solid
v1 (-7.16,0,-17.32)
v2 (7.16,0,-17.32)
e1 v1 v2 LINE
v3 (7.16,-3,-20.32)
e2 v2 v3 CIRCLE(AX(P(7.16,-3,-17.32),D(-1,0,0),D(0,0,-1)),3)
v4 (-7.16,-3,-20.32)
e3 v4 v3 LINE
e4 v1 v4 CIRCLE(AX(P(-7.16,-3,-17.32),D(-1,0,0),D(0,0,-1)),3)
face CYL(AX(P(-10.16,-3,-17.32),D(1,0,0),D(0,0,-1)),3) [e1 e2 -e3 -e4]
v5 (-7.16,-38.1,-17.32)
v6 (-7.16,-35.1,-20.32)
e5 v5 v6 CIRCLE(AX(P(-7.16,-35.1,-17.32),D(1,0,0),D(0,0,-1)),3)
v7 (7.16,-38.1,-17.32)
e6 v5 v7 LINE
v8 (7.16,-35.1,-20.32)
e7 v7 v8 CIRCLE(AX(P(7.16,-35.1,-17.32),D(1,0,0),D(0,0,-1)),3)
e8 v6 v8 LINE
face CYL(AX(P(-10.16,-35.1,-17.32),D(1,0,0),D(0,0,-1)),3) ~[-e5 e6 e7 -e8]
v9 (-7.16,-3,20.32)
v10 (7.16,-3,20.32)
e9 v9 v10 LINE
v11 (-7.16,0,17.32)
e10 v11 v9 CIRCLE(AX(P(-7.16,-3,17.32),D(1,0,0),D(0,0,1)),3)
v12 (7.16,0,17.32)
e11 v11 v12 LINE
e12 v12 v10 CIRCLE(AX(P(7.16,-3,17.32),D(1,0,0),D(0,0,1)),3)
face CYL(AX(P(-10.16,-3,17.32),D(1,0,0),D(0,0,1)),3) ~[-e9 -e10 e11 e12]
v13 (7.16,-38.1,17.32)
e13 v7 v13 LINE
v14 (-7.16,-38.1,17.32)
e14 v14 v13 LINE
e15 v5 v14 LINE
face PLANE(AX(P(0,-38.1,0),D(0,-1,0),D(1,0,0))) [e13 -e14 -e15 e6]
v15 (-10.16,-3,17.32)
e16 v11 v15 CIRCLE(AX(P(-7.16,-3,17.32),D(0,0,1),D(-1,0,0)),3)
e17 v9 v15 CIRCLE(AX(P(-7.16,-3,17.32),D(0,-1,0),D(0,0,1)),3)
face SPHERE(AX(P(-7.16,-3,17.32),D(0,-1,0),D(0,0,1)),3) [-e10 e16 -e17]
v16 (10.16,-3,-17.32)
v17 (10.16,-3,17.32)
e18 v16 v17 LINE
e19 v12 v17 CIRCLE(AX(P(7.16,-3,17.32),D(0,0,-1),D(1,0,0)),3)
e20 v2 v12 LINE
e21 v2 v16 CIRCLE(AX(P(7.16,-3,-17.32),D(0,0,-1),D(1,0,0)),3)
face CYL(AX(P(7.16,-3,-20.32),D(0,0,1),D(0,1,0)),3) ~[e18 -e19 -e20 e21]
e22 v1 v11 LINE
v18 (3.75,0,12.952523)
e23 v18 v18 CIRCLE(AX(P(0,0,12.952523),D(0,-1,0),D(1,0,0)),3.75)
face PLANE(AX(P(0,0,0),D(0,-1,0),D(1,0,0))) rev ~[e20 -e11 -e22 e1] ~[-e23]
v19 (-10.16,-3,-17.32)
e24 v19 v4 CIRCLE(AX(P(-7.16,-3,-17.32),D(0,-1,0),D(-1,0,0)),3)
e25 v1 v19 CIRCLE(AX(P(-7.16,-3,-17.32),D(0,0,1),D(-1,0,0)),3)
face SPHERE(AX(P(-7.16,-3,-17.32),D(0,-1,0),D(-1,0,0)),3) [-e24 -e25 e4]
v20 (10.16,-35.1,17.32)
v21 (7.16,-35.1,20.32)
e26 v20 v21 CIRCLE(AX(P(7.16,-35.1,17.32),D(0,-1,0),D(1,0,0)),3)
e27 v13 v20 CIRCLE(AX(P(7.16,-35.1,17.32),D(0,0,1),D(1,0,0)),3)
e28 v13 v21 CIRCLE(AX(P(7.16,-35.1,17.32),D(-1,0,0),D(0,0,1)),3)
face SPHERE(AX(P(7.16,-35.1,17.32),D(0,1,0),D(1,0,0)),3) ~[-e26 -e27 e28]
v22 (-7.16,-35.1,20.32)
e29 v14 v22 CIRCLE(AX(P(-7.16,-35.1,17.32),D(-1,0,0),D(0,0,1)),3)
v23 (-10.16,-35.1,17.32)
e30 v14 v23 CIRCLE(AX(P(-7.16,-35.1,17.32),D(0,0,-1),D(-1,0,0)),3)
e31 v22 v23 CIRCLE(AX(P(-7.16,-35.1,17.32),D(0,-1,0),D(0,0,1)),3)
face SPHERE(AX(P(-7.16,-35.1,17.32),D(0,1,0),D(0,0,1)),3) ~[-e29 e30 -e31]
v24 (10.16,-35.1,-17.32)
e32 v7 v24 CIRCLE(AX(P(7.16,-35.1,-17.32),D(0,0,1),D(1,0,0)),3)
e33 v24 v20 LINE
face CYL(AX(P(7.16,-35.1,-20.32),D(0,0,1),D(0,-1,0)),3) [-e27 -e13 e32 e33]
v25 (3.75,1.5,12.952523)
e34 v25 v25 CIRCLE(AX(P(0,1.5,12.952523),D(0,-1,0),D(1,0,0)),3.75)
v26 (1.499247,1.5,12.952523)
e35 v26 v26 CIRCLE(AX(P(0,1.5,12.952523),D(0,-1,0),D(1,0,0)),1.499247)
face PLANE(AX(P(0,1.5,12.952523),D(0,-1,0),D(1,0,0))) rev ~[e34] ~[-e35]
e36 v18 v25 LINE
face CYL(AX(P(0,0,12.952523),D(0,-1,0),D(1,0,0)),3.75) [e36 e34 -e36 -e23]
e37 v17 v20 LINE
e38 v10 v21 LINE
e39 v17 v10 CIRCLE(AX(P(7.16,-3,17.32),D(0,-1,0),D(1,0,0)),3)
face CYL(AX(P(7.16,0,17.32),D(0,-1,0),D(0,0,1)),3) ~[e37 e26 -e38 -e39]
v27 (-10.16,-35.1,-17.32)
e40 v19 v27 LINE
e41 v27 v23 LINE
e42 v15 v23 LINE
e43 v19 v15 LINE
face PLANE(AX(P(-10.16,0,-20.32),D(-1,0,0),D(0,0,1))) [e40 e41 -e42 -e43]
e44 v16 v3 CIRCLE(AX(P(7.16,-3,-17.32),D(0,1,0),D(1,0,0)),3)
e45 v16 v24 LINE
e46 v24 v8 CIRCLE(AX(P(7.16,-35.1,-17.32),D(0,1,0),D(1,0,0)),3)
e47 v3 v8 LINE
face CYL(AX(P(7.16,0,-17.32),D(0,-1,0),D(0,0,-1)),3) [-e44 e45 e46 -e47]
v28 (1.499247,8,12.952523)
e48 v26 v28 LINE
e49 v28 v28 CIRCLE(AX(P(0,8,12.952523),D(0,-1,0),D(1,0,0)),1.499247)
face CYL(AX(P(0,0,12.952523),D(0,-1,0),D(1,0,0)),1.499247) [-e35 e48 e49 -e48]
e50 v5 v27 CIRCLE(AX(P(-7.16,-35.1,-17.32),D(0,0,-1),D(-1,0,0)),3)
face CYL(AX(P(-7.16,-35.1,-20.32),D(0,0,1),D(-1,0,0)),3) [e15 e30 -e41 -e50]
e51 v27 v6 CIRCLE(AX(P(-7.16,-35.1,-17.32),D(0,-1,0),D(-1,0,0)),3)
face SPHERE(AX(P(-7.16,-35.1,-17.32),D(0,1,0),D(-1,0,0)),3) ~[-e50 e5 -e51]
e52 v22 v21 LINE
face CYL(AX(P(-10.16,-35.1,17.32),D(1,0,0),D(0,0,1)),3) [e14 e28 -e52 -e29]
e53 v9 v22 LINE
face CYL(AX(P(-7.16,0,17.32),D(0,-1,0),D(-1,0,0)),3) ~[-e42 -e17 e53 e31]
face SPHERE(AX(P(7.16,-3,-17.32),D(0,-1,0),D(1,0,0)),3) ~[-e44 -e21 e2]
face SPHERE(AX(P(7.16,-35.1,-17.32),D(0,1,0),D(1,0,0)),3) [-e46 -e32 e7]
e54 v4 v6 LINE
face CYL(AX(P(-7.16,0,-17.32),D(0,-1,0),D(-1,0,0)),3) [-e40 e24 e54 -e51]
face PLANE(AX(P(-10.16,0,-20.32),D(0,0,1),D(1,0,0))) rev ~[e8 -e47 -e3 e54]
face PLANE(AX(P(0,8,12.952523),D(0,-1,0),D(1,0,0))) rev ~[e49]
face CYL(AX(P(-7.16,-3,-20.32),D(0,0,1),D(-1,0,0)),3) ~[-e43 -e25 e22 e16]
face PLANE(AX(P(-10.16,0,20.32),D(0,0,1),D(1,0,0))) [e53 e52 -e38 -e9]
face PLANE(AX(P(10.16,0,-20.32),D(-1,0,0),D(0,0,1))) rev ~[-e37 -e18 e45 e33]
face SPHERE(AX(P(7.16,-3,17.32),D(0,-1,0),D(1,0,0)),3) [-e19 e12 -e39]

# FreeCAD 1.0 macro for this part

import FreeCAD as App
import Part
import Sketcher
from FreeCAD import Vector


def edges_at(feature, points):
    """Names of the edges that pass closest to the given points."""
    edges = feature.Shape.Edges
    near = lambda p: min(range(len(edges)), key=lambda i: edges[i].distToShape(Part.Vertex(*p))[0])
    return sorted({f"Edge{near(p) + 1}" for p in points})

doc = App.newDocument("Part")
body = doc.addObject("PartDesign::Body", "Body")

sketch1 = doc.addObject("Sketcher::SketchObject", "Sketch")
body.addObject(sketch1)
sketch1.AttachmentSupport = (doc.XZ_Plane, [""])
sketch1.MapMode = "FlatFace"
sketch1.addGeometry([
    Part.LineSegment(Vector(-10.16, 20.32, 0), Vector(-10.16, -20.32, 0)),
    Part.LineSegment(Vector(-10.16, -20.32, 0), Vector(10.16, -20.32, 0)),
    Part.LineSegment(Vector(10.16, -20.32, 0), Vector(10.16, 20.32, 0)),
    Part.LineSegment(Vector(10.16, 20.32, 0), Vector(-10.16, 20.32, 0)),
], False)
sketch1.addConstraint([
    Sketcher.Constraint("Coincident", 0, 2, 1, 1),
    Sketcher.Constraint("Coincident", 1, 2, 2, 1),
    Sketcher.Constraint("Coincident", 2, 2, 3, 1),
    Sketcher.Constraint("Coincident", 3, 2, 0, 1),
    Sketcher.Constraint("Vertical", 0),
    Sketcher.Constraint("Horizontal", 1),
    Sketcher.Constraint("Vertical", 2),
    Sketcher.Constraint("Horizontal", 3),
    Sketcher.Constraint("Symmetric", 0, 2, 2, 2, -1, 1),
    Sketcher.Constraint("DistanceX", 1, 1, 1, 2, 20.32),
    Sketcher.Constraint("DistanceY", 0, 2, 0, 1, 40.64),
])
pad1 = doc.addObject("PartDesign::Pad", "Pad")
body.addObject(pad1)
pad1.Profile = sketch1
pad1.Length = 38.1

sketch2 = doc.addObject("Sketcher::SketchObject", "Sketch001")
body.addObject(sketch2)
sketch2.AttachmentSupport = (doc.XZ_Plane, [""])
sketch2.MapMode = "FlatFace"
sketch2.addGeometry([
    Part.Circle(Vector(0, 12.952523, 0), Vector(0, 0, 1), 3.75),
    Part.Circle(Vector(0, 12.952523, 0), Vector(0, 0, 1), 1.499247),
], False)
sketch2.addConstraint([
    Sketcher.Constraint("Coincident", 1, 3, 0, 3),
    Sketcher.Constraint("PointOnObject", 0, 3, -2),
    Sketcher.Constraint("Diameter", 0, 7.5),
    Sketcher.Constraint("Diameter", 1, 2.998494),
    Sketcher.Constraint("DistanceY", -1, 1, 0, 3, 12.952523),
])
pad2 = doc.addObject("PartDesign::Pad", "Pad001")
body.addObject(pad2)
pad2.Profile = sketch2
pad2.Length = 1.5
pad2.Reversed = True
doc.recompute()

fillet = doc.addObject("PartDesign::Fillet", "Fillet")
body.addObject(fillet)
fillet.Base = (pad2, edges_at(pad2, [
    (10.16, -19.05, -20.32),
    (10.16, -19.05, 20.32),
    (10.16, 0, 0),
    (10.16, -38.1, 0),
    (-10.16, -19.05, 20.32),
    (0, 0, 20.32),
    (0, -38.1, 20.32),
    (-10.16, -19.05, -20.32),
    (-10.16, 0, 0),
    (-10.16, -38.1, 0),
    (0, -38.1, -20.32),
    (0, 0, -20.32),
]))
fillet.Radius = 3

sketch3 = doc.addObject("Sketcher::SketchObject", "Sketch002")
body.addObject(sketch3)
sketch3.AttachmentSupport = (doc.XZ_Plane, [""])
sketch3.MapMode = "FlatFace"
sketch3.addGeometry(Part.Circle(Vector(0, 12.952523, 0), Vector(0, 0, 1), 1.499247), False)
sketch3.addConstraint([
    Sketcher.Constraint("PointOnObject", 0, 3, -2),
    Sketcher.Constraint("Diameter", 0, 2.998494),
    Sketcher.Constraint("DistanceY", -1, 1, 0, 3, 12.952523),
])
pad3 = doc.addObject("PartDesign::Pad", "Pad002")
body.addObject(pad3)
pad3.Profile = sketch3
pad3.Length = 8
pad3.Reversed = True

doc.recompute()
